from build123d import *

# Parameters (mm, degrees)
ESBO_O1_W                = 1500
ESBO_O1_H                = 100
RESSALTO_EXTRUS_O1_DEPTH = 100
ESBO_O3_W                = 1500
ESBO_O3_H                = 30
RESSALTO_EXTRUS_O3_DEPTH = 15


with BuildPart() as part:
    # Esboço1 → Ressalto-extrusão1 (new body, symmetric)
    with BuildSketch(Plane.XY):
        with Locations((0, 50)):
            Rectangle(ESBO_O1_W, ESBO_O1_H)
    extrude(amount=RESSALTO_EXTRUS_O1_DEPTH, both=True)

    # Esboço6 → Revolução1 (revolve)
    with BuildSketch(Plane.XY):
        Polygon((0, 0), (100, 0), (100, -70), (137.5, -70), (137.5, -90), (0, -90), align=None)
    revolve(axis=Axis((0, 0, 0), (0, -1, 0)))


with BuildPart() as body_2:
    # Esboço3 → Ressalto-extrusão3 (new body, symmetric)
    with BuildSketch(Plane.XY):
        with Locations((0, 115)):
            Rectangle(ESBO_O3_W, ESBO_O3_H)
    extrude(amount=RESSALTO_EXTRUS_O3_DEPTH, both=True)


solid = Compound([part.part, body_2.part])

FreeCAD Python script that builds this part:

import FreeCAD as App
import Part
import Sketcher
Q = App.Units.Quantity

doc = App.newDocument("Part")
body = doc.addObject("PartDesign::Body", "Body")

# Sketch on XY plane
sketch1 = doc.addObject("Sketcher::SketchObject", "Sketch")
body.addObject(sketch1)
sketch1.AttachmentSupport = (doc.XY_Plane, [""])
sketch1.MapMode = "FlatFace"
sketch1.addGeometry(Part.LineSegment(App.Vector(-750, 100, 0), App.Vector(-750, 0, 0)), False)
sketch1.addGeometry(Part.LineSegment(App.Vector(-750, 0, 0), App.Vector(750, 0, 0)), False)
sketch1.addGeometry(Part.LineSegment(App.Vector(750, 0, 0), App.Vector(750, 100, 0)), False)
sketch1.addGeometry(Part.LineSegment(App.Vector(750, 100, 0), App.Vector(-750, 100, 0)), False)
sketch1.addConstraint(Sketcher.Constraint("Coincident", 0, 2, 1, 1))
sketch1.addConstraint(Sketcher.Constraint("Coincident", 1, 2, 2, 1))
sketch1.addConstraint(Sketcher.Constraint("Coincident", 2, 2, 3, 1))
sketch1.addConstraint(Sketcher.Constraint("Coincident", 3, 2, 0, 1))
sketch1.addConstraint(Sketcher.Constraint("Vertical", 0))
sketch1.addConstraint(Sketcher.Constraint("Horizontal", 1))
sketch1.addConstraint(Sketcher.Constraint("Vertical", 2))
sketch1.addConstraint(Sketcher.Constraint("Horizontal", 3))
sketch1.addConstraint(Sketcher.Constraint("Symmetric", 0, 2, 1, 2, -1, 1))
sketch1.addConstraint(Sketcher.Constraint("DistanceX", 1, 1, 1, 2, Q("1500 mm")))
sketch1.addConstraint(Sketcher.Constraint("DistanceY", 0, 2, 0, 1, Q("100 mm")))
pad1 = doc.addObject("PartDesign::Pad", "Pad")
body.addObject(pad1)
pad1.Profile = sketch1
pad1.Length = 200
pad1.Midplane = True

# Sketch on XY plane
sketch2 = doc.addObject("Sketcher::SketchObject", "Sketch001")
body.addObject(sketch2)
sketch2.AttachmentSupport = (doc.XY_Plane, [""])
sketch2.MapMode = "FlatFace"
sketch2.addGeometry(Part.LineSegment(App.Vector(100, 0, 0), App.Vector(0, 0, 0)), False)
sketch2.addGeometry(Part.LineSegment(App.Vector(0, 0, 0), App.Vector(0, -90, 0)), False)
sketch2.addGeometry(Part.LineSegment(App.Vector(0, -90, 0), App.Vector(137.5, -90, 0)), False)
sketch2.addGeometry(Part.LineSegment(App.Vector(137.5, -90, 0), App.Vector(137.5, -70, 0)), False)
sketch2.addGeometry(Part.LineSegment(App.Vector(137.5, -70, 0), App.Vector(100, -70, 0)), False)
sketch2.addGeometry(Part.LineSegment(App.Vector(100, -70, 0), App.Vector(100, 0, 0)), False)
sketch2.addConstraint(Sketcher.Constraint("Coincident", 0, 2, 1, 1))
sketch2.addConstraint(Sketcher.Constraint("Coincident", 1, 2, 2, 1))
sketch2.addConstraint(Sketcher.Constraint("Coincident", 2, 2, 3, 1))
sketch2.addConstraint(Sketcher.Constraint("Coincident", 3, 2, 4, 1))
sketch2.addConstraint(Sketcher.Constraint("Coincident", 4, 2, 5, 1))
sketch2.addConstraint(Sketcher.Constraint("Coincident", 5, 2, 0, 1))
sketch2.addConstraint(Sketcher.Constraint("Horizontal", 0))
sketch2.addConstraint(Sketcher.Constraint("Vertical", 1))
sketch2.addConstraint(Sketcher.Constraint("Horizontal", 2))
sketch2.addConstraint(Sketcher.Constraint("Vertical", 3))
sketch2.addConstraint(Sketcher.Constraint("Horizontal", 4))
sketch2.addConstraint(Sketcher.Constraint("Vertical", 5))
sketch2.addConstraint(Sketcher.Constraint("Coincident", 0, 2, -1, 1))
sketch2.addConstraint(Sketcher.Constraint("DistanceX", 0, 2, 0, 1, Q("100 mm")))
sketch2.addConstraint(Sketcher.Constraint("DistanceY", 1, 2, 1, 1, Q("90 mm")))
sketch2.addConstraint(Sketcher.Constraint("DistanceY", 3, 1, 3, 2, Q("20 mm")))
sketch2.addConstraint(Sketcher.Constraint("DistanceX", 2, 1, 2, 2, Q("137.5 mm")))
revolution = doc.addObject("PartDesign::Revolution", "Revolution")
body.addObject(revolution)
revolution.Profile = sketch2
revolution.ReferenceAxis = (sketch2, ["V_Axis"])
revolution.Angle = 360
body2 = doc.addObject("PartDesign::Body", "Body001")

# Sketch on XY plane
sketch3 = doc.addObject("Sketcher::SketchObject", "Sketch002")
body2.addObject(sketch3)
sketch3.AttachmentSupport = (doc.getObject("XY_Plane001"), [""])
sketch3.MapMode = "FlatFace"
sketch3.addGeometry(Part.LineSegment(App.Vector(-750, 130, 0), App.Vector(-750, 100, 0)), False)
sketch3.addGeometry(Part.LineSegment(App.Vector(-750, 100, 0), App.Vector(750, 100, 0)), False)
sketch3.addGeometry(Part.LineSegment(App.Vector(750, 100, 0), App.Vector(750, 130, 0)), False)
sketch3.addGeometry(Part.LineSegment(App.Vector(750, 130, 0), App.Vector(-750, 130, 0)), False)
sketch3.addConstraint(Sketcher.Constraint("Coincident", 0, 2, 1, 1))
sketch3.addConstraint(Sketcher.Constraint("Coincident", 1, 2, 2, 1))
sketch3.addConstraint(Sketcher.Constraint("Coincident", 2, 2, 3, 1))
sketch3.addConstraint(Sketcher.Constraint("Coincident", 3, 2, 0, 1))
sketch3.addConstraint(Sketcher.Constraint("Vertical", 0))
sketch3.addConstraint(Sketcher.Constraint("Horizontal", 1))
sketch3.addConstraint(Sketcher.Constraint("Vertical", 2))
sketch3.addConstraint(Sketcher.Constraint("Horizontal", 3))
sketch3.addConstraint(Sketcher.Constraint("DistanceX", 1, 1, 1, 2, Q("1500 mm")))
sketch3.addConstraint(Sketcher.Constraint("DistanceY", 0, 2, 0, 1, Q("30 mm")))
sketch3.addConstraint(Sketcher.Constraint("DistanceX", 0, 2, -1, 1, Q("750 mm")))
sketch3.addConstraint(Sketcher.Constraint("DistanceY", -1, 1, 0, 2, Q("100 mm")))
pad2 = doc.addObject("PartDesign::Pad", "Pad001")
body2.addObject(pad2)
pad2.Profile = sketch3
pad2.Length = 30
pad2.Midplane = True

doc.recompute()
